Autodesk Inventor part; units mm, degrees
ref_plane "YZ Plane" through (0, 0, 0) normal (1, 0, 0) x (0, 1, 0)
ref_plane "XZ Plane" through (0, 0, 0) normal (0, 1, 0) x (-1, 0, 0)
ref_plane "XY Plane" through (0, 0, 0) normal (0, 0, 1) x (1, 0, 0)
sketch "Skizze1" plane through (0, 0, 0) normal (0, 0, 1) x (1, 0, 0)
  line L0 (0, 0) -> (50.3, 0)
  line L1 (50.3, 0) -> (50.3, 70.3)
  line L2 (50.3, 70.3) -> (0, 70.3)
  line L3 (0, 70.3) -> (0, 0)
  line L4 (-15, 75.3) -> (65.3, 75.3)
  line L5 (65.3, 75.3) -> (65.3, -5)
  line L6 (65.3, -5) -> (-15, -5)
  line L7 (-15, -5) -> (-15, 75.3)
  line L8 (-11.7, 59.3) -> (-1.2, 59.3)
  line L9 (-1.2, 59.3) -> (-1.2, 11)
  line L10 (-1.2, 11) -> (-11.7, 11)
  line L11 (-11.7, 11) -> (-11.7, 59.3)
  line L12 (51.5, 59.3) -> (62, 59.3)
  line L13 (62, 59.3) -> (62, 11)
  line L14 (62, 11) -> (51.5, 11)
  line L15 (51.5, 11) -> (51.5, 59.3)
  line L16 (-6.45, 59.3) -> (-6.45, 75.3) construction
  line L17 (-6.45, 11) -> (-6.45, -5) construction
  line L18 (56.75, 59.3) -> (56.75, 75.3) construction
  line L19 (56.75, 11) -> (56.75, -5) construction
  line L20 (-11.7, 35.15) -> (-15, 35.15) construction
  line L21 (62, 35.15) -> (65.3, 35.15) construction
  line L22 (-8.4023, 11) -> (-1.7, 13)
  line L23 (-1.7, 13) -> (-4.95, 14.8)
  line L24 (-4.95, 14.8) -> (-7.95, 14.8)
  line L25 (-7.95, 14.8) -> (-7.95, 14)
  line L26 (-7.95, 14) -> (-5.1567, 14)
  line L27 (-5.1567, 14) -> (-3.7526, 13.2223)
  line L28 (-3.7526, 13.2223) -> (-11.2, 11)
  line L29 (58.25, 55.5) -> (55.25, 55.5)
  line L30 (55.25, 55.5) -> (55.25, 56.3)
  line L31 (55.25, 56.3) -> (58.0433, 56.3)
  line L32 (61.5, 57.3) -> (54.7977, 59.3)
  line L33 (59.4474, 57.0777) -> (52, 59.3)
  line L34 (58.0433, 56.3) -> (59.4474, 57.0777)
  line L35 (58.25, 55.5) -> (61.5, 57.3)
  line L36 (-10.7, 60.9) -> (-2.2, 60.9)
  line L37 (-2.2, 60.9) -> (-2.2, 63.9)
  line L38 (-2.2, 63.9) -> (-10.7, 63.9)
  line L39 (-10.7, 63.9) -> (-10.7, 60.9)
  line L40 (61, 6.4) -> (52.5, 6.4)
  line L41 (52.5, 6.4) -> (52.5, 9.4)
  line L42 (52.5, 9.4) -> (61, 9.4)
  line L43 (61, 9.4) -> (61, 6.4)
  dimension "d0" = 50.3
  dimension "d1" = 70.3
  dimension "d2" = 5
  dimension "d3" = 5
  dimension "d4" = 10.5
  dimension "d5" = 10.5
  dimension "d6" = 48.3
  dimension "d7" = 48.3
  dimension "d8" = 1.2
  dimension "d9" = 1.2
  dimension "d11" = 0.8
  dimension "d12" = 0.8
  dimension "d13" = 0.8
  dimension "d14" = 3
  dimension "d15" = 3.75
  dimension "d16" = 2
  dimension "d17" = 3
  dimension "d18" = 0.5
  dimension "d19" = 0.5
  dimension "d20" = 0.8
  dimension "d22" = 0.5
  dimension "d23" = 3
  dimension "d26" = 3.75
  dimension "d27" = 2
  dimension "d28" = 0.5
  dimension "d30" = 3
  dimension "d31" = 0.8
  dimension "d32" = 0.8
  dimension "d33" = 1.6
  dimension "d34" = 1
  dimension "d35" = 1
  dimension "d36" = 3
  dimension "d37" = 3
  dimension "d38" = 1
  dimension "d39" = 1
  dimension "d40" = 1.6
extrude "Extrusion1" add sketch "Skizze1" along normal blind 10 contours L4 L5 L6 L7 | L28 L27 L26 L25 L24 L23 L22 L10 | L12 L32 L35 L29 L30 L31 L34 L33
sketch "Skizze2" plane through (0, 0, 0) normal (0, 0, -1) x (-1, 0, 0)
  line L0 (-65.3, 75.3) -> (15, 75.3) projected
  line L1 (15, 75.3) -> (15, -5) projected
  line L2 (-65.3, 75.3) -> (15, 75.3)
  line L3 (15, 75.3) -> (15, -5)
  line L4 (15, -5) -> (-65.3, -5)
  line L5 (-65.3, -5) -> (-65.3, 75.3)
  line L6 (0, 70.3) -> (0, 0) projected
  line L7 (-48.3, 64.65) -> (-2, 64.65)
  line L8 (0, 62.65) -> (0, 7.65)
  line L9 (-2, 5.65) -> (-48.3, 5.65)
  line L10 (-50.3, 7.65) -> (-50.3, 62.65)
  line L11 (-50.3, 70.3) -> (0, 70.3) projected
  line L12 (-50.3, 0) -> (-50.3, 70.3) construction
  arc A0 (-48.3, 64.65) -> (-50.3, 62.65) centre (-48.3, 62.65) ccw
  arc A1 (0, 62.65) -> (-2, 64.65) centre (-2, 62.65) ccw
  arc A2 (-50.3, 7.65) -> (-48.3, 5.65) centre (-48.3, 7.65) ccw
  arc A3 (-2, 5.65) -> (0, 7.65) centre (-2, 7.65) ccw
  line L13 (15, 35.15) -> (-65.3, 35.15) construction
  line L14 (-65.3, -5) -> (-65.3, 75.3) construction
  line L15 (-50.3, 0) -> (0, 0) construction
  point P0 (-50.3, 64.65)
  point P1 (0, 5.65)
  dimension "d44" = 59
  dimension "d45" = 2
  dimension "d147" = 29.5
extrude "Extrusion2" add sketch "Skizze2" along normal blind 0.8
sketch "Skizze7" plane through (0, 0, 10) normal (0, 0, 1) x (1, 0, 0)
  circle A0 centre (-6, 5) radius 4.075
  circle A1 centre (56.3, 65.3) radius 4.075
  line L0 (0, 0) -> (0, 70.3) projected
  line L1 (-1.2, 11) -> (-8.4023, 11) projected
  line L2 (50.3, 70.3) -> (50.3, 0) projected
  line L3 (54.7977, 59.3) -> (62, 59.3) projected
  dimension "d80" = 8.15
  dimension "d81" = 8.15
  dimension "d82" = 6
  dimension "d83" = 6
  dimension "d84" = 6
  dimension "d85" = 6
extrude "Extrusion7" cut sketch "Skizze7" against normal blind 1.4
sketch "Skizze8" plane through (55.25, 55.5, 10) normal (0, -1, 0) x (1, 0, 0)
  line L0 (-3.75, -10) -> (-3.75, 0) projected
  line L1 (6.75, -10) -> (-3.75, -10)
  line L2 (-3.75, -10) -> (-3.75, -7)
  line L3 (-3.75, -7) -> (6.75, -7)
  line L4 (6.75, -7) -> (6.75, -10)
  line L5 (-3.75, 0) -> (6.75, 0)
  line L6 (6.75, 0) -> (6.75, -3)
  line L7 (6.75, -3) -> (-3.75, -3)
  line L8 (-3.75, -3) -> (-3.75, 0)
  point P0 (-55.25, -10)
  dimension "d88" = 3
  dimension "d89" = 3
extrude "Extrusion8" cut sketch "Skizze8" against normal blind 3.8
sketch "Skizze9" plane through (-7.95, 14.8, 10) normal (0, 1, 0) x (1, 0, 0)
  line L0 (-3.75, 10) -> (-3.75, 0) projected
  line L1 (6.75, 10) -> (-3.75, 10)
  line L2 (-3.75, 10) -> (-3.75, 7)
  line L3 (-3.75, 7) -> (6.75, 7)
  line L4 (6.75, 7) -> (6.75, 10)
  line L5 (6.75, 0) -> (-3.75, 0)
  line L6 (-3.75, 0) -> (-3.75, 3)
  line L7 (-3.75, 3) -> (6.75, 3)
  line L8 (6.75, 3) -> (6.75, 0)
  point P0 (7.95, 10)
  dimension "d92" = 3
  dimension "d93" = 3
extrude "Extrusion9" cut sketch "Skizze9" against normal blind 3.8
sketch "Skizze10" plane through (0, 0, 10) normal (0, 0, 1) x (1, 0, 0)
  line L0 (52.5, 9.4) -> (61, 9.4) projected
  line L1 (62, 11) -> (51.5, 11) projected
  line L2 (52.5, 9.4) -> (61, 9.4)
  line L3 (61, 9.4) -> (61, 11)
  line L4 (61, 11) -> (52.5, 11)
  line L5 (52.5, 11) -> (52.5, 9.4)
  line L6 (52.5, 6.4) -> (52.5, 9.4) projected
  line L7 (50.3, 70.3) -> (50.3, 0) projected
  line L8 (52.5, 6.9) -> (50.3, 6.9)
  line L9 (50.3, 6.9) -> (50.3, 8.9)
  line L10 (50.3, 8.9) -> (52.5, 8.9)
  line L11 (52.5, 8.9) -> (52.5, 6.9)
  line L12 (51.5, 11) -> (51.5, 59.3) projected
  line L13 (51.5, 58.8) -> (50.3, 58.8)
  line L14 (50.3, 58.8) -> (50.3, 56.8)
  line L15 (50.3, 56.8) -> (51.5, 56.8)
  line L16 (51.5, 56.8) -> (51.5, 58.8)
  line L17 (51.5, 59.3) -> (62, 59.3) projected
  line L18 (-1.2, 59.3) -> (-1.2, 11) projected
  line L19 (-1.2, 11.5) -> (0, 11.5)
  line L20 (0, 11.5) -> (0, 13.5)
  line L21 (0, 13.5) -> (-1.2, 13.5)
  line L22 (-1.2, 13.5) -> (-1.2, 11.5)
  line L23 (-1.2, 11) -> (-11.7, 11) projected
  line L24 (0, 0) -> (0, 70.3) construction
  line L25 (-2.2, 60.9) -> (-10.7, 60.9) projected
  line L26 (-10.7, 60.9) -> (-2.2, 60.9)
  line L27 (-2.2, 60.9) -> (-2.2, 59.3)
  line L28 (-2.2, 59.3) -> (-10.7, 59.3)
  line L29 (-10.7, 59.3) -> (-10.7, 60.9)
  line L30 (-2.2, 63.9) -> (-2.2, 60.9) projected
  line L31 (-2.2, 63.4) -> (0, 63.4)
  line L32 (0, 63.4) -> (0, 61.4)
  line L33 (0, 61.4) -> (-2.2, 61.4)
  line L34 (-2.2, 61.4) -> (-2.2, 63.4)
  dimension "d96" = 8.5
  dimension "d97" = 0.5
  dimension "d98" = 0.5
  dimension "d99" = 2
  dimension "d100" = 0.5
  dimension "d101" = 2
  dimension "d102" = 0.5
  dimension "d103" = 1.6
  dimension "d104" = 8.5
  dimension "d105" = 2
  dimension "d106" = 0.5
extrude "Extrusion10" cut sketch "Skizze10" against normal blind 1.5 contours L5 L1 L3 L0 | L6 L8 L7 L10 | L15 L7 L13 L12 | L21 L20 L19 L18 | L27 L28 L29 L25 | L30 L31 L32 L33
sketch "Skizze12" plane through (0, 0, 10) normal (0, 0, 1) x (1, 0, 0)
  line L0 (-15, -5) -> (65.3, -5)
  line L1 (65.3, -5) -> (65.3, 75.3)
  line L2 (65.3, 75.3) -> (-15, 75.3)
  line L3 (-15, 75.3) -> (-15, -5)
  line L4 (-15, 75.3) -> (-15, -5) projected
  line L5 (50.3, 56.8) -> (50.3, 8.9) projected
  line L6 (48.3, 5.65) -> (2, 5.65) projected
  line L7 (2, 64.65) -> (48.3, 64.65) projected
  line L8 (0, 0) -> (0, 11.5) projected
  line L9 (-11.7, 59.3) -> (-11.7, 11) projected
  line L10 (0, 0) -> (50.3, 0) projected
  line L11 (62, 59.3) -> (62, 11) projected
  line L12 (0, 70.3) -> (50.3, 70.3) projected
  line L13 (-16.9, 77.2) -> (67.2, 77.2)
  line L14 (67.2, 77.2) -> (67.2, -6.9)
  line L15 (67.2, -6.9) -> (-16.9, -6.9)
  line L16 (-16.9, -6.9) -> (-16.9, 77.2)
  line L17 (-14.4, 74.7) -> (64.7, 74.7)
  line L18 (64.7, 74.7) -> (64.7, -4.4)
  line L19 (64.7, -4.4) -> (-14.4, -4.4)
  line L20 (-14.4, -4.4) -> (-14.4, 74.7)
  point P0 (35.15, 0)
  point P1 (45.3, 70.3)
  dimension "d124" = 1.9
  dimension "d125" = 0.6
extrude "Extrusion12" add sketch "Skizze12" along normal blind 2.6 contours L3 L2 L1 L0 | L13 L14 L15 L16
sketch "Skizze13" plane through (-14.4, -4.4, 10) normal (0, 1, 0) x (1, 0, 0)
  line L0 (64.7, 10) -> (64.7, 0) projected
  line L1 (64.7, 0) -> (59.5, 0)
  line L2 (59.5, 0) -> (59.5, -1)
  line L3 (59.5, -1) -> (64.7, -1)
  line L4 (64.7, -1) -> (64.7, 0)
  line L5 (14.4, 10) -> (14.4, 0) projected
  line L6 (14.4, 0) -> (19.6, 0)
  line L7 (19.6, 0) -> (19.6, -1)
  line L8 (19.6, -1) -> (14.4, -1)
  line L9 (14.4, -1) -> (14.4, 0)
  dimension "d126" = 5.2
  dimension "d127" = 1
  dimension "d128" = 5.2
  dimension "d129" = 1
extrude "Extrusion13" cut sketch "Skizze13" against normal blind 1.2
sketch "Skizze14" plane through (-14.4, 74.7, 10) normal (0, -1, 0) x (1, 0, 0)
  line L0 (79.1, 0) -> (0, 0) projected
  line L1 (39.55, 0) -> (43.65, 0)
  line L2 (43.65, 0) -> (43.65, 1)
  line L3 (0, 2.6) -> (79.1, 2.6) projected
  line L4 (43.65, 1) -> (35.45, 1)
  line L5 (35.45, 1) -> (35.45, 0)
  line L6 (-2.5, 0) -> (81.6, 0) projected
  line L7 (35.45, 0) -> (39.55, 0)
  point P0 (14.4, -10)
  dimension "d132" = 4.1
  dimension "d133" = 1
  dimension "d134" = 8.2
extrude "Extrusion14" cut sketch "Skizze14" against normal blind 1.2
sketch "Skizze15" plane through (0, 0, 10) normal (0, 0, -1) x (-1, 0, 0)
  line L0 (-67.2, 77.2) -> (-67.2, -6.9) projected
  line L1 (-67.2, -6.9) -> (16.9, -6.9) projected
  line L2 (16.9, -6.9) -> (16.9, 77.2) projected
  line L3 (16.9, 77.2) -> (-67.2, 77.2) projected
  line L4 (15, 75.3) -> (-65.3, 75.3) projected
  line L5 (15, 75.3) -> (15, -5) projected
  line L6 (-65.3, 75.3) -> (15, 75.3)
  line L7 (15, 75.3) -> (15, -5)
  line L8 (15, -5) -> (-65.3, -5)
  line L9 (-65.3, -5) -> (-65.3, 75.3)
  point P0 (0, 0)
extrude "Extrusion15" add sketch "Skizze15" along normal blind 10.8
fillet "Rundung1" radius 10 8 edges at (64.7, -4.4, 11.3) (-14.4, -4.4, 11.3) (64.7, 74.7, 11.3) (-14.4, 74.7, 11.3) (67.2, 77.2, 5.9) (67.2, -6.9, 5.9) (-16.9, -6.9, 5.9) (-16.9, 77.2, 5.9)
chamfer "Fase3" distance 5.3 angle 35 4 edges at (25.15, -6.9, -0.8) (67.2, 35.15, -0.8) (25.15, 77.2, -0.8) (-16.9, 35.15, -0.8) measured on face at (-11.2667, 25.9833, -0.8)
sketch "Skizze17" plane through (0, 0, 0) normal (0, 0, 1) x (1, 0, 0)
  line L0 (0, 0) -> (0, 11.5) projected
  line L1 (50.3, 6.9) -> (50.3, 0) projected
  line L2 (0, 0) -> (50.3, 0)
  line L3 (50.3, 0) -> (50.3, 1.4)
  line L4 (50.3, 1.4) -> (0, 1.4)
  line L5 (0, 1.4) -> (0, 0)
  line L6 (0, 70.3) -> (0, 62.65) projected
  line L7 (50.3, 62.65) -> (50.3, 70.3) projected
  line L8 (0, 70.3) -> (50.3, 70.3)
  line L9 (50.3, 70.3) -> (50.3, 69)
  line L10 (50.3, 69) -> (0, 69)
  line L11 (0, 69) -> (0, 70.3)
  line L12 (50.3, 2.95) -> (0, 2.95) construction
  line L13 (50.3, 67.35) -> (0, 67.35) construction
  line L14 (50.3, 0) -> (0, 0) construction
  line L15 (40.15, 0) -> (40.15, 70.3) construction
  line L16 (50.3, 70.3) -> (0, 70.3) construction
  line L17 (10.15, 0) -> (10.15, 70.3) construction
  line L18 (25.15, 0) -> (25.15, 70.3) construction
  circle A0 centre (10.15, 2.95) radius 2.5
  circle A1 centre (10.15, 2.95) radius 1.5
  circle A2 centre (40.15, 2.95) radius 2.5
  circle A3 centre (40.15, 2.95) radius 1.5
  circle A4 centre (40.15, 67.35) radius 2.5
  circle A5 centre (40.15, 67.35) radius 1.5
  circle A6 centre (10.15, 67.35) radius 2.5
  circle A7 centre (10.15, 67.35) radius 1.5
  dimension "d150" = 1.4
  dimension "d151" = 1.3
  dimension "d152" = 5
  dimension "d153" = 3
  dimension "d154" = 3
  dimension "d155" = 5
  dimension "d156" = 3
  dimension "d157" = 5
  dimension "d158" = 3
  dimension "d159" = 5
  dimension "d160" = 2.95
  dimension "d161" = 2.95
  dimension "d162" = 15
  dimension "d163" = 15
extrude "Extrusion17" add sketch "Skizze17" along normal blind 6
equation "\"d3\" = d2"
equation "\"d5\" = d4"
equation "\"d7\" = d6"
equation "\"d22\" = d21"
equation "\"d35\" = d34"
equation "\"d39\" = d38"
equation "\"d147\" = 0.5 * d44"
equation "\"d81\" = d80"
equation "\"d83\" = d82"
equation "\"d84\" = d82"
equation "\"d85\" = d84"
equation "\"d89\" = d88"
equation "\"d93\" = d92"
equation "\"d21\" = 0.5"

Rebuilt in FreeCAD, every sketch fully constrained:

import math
import FreeCAD as App
import Part
import Sketcher

V = App.Vector
Q = App.Units.Quantity


def edges_at(feature, points):
    """Names of the edges that pass closest to the given points."""
    edges = feature.Shape.Edges
    near = lambda p: min(range(len(edges)), key=lambda i: edges[i].distToShape(Part.Vertex(*p))[0])
    return sorted({f"Edge{near(p) + 1}" for p in points})


def add_polygon(sketch, points):
    """Adds a closed chain of lines whose ends are joined by coincident constraints."""
    first, n = sketch.GeometryCount, len(points)
    for a, b in zip(points, points[1:] + points[:1]):
        sketch.addGeometry(Part.LineSegment(App.Vector(*a, 0), App.Vector(*b, 0)), False)
    for i in range(n):
        sketch.addConstraint(Sketcher.Constraint("Coincident", first + i, 2, first + (i + 1) % n, 1))

doc = App.newDocument("Part")
body = doc.addObject("PartDesign::Body", "Body")

sketch1 = body.newObject("Sketcher::SketchObject", "Sketch")
sketch1.AttachmentSupport = (doc.getObject("XY_Plane"), [""])
sketch1.MapMode = "FlatFace"
add_polygon(sketch1, [(65.3, 75.3), (-15, 75.3), (-15, -5), (65.3, -5)])
add_polygon(sketch1, [(61, 9.4), (61, 6.4), (52.5, 6.4), (52.5, 9.4)])
add_polygon(sketch1, [(-11.7, 11), (-11.7, 59.3), (-1.2, 59.3), (-1.2, 11), (-8.4, 11), (-1.7, 13), (-5, 14.8), (-8, 14.8), (-8, 14), (-5.2, 14), (-3.8, 13.2), (-11.2, 11)])
add_polygon(sketch1, [(-2.2, 60.9), (-10.7, 60.9), (-10.7, 63.9), (-2.2, 63.9)])
add_polygon(sketch1, [(50.3, 0), (0, 0), (0, 70.3), (50.3, 70.3)])
add_polygon(sketch1, [(51.5, 11), (51.5, 59.3), (52, 59.3), (59.4, 57.1), (58, 56.3), (55.2, 56.3), (55.2, 55.5), (58.2, 55.5), (61.5, 57.3), (54.8, 59.3), (62, 59.3), (62, 11)])
sketch1.addConstraint([
    Sketcher.Constraint("Horizontal", 0),
    Sketcher.Constraint("Vertical", 1),
    Sketcher.Constraint("Horizontal", 2),
    Sketcher.Constraint("Vertical", 3),
    Sketcher.Constraint("Vertical", 4),
    Sketcher.Constraint("Horizontal", 5),
    Sketcher.Constraint("Vertical", 6),
    Sketcher.Constraint("Horizontal", 7),
    Sketcher.Constraint("Vertical", 8),
    Sketcher.Constraint("Horizontal", 9),
    Sketcher.Constraint("Vertical", 10),
    Sketcher.Constraint("Horizontal", 11),
    Sketcher.Constraint("Horizontal", 14),
    Sketcher.Constraint("Vertical", 15),
    Sketcher.Constraint("Horizontal", 16),
    Sketcher.Constraint("Horizontal", 19),
    Sketcher.Constraint("Horizontal", 20),
    Sketcher.Constraint("Vertical", 21),
    Sketcher.Constraint("Horizontal", 22),
    Sketcher.Constraint("Vertical", 23),
    Sketcher.Constraint("Horizontal", 24),
    Sketcher.Constraint("Vertical", 25),
    Sketcher.Constraint("Horizontal", 26),
    Sketcher.Constraint("Vertical", 27),
    Sketcher.Constraint("Vertical", 28),
    Sketcher.Constraint("Horizontal", 29),
    Sketcher.Constraint("Horizontal", 32),
    Sketcher.Constraint("Vertical", 33),
    Sketcher.Constraint("Horizontal", 34),
    Sketcher.Constraint("Horizontal", 37),
    Sketcher.Constraint("Vertical", 38),
    Sketcher.Constraint("Horizontal", 39),
    Sketcher.Constraint("Coincident", 24, 2, -1, 1),
    Sketcher.Constraint("Parallel", 13, 17),
    Sketcher.Constraint("Parallel", 12, 18),
    Sketcher.Constraint("Parallel", 31, 35),
    Sketcher.Constraint("Parallel", 30, 36),
    Sketcher.Constraint("Horizontal", 11, 2, 18, 2),
    Sketcher.Constraint("Horizontal", 9, 2, 28, 2),
    Sketcher.Constraint("Horizontal", 29, 2, 36, 2),
    Sketcher.Constraint("Horizontal", 19, 2, 38, 2),
    Sketcher.Constraint("Equal", 7, 20),
    Sketcher.Constraint("Equal", 19, 29),
    Sketcher.Constraint("Equal", 16, 32),
    Sketcher.Constraint("Equal", 14, 34),
    Sketcher.Constraint("Equal", 11, 37),
    Sketcher.Constraint("Equal", 9, 39),
    Sketcher.Constraint("Equal", 2, 1),
    Sketcher.Constraint("Equal", 34, 4),
    Sketcher.Constraint("Equal", 6, 21),
    Sketcher.Constraint("Equal", 15, 33),
    Sketcher.Constraint("Equal", 18, 30),
    Sketcher.Constraint("Equal", 17, 31),
    Sketcher.Constraint("Equal", 13, 35),
    Sketcher.Constraint("Equal", 12, 36),
    Sketcher.Constraint("DistanceX", 14, 2, 14, 1, Q("3 mm")),
    Sketcher.Constraint("DistanceX", 9, 1, 9, 2, Q("10.5 mm")),
    Sketcher.Constraint("DistanceX", 19, 2, 19, 1, Q("0.5 mm")),
    Sketcher.Constraint("DistanceX", 24, 2, 24, 1, Q("50.3 mm")),
    Sketcher.Constraint("DistanceY", 8, 1, 8, 2, Q("48.3 mm")),
    Sketcher.Constraint("DistanceY", 15, 2, 15, 1, Q("0.8 mm")),
    Sketcher.Constraint("DistanceY", 25, 1, 25, 2, Q("70.3 mm")),
    Sketcher.Constraint("DistanceY", 1, 2, -1, 1, Q("5 mm")),
    Sketcher.Constraint("DistanceY", 10, 2, 12, 2, Q("2 mm")),
    Sketcher.Constraint("DistanceY", 11, 2, 15, 2, Q("3 mm")),
    Sketcher.Constraint("DistanceX", 8, 2, 20, 2, Q("1 mm")),
    Sketcher.Constraint("DistanceX", 22, 2, 9, 2, Q("1 mm")),
    Sketcher.Constraint("DistanceY", 26, 2, 3, 2, Q("5 mm")),
    Sketcher.Constraint("DistanceX", 28, 2, 6, 2, Q("1 mm")),
    Sketcher.Constraint("DistanceX", 9, 2, -1, 1, Q("1.2 mm")),
    Sketcher.Constraint("DistanceY", 6, 2, 10, 2, Q("1.6 mm")),
    Sketcher.Constraint("DistanceX", 12, 2, 10, 2, Q("0.5 mm")),
    Sketcher.Constraint("DistanceY", 8, 2, 20, 2, Q("1.6 mm")),
    Sketcher.Constraint("DistanceX", 26, 2, 28, 2, Q("1.2 mm")),
    Sketcher.Constraint("DistanceX", 13, 2, 10, 2, Q("3.75 mm")),
    Sketcher.Constraint("DistanceX", 0, 2, -1, 1, Q("15 mm")),
    Sketcher.Constraint("DistanceY", -1, 1, 10, 2, Q("11 mm")),
    Sketcher.Constraint("Distance", 17, Q("1.605 mm")),
    Sketcher.Constraint("Distance", 18, Q("7.772 mm")),
])
pad1 = body.newObject("PartDesign::Pad", "Pad")
pad1.Profile = sketch1
pad1.Length = 10

sketch2 = body.newObject("Sketcher::SketchObject", "Sketch001")
sketch2.AttachmentSupport = (doc.getObject("XY_Plane"), [""])
sketch2.MapMode = "FlatFace"
add_polygon(sketch2, [(-15, 75.3), (65.3, 75.3), (65.3, -5), (-15, -5)])
sketch2.addGeometry(Part.ArcOfCircle(Part.Circle(V(2, 62.6, 0), V(0, 0, 1), 2), math.radians(90), math.radians(180)), False)
sketch2.addGeometry(Part.LineSegment(V(0, 62.6, 0), V(0, 7.7, 0)), False)
sketch2.addGeometry(Part.ArcOfCircle(Part.Circle(V(2, 7.7, 0), V(0, 0, 1), 2), math.radians(180), math.radians(270)), False)
sketch2.addGeometry(Part.LineSegment(V(2, 5.7, 0), V(48.3, 5.7, 0)), False)
sketch2.addGeometry(Part.ArcOfCircle(Part.Circle(V(48.3, 7.7, 0), V(0, 0, 1), 2), math.radians(-90), math.radians(0)), False)
sketch2.addGeometry(Part.LineSegment(V(50.3, 7.7, 0), V(50.3, 62.6, 0)), False)
sketch2.addGeometry(Part.ArcOfCircle(Part.Circle(V(48.3, 62.6, 0), V(0, 0, 1), 2), math.radians(0), math.radians(90)), False)
sketch2.addGeometry(Part.LineSegment(V(48.3, 64.7, 0), V(2, 64.7, 0)), False)
sketch2.addConstraint([
    Sketcher.Constraint("Tangent", 4, 2, 5, 1),
    Sketcher.Constraint("Tangent", 5, 2, 6, 1),
    Sketcher.Constraint("Tangent", 6, 2, 7, 1),
    Sketcher.Constraint("Tangent", 7, 2, 8, 1),
    Sketcher.Constraint("Tangent", 8, 2, 9, 1),
    Sketcher.Constraint("Tangent", 9, 2, 10, 1),
    Sketcher.Constraint("Tangent", 10, 2, 11, 1),
    Sketcher.Constraint("Tangent", 11, 2, 4, 1),
    Sketcher.Constraint("Horizontal", 0),
    Sketcher.Constraint("Vertical", 1),
    Sketcher.Constraint("Horizontal", 2),
    Sketcher.Constraint("Vertical", 3),
    Sketcher.Constraint("Vertical", 5),
    Sketcher.Constraint("Horizontal", 7),
    Sketcher.Constraint("Vertical", 9),
    Sketcher.Constraint("Horizontal", 11),
    Sketcher.Constraint("Equal", 4, 6),
    Sketcher.Constraint("Equal", 6, 8),
    Sketcher.Constraint("Equal", 8, 10),
    Sketcher.Constraint("PointOnObject", 4, 2, -2),
    Sketcher.Constraint("Equal", 2, 1),
    Sketcher.Constraint("Radius", 4, Q("2 mm")),
    Sketcher.Constraint("DistanceY", 5, 2, 5, 1, Q("55 mm")),
    Sketcher.Constraint("DistanceX", 0, 1, 0, 2, Q("80.3 mm")),
    Sketcher.Constraint("DistanceX", 7, 1, 7, 2, Q("46.3 mm")),
    Sketcher.Constraint("DistanceY", 1, 2, -1, 1, Q("5 mm")),
    Sketcher.Constraint("DistanceX", 2, 2, -1, 1, Q("15 mm")),
    Sketcher.Constraint("DistanceY", -1, 1, 4, 3, Q("62.65 mm")),
])
pad2 = body.newObject("PartDesign::Pad", "Pad001")
pad2.Profile = sketch2
pad2.Length = 0.8
pad2.Reversed = True

sketch3 = body.newObject("Sketcher::SketchObject", "Sketch002")
sketch3.AttachmentSupport = (doc.getObject("XY_Plane"), [""])
sketch3.MapMode = "FlatFace"
sketch3.AttachmentOffset = App.Placement(V(0, 0, 10), App.Rotation())
sketch3.addGeometry([
    Part.Circle(V(-6, 5, 0), V(0, 0, 1), 4.1),
    Part.Circle(V(56.3, 65.3, 0), V(0, 0, 1), 4.1),
], False)
sketch3.addConstraint([
    Sketcher.Constraint("Equal", 0, 1),
    Sketcher.Constraint("Diameter", 0, Q("8.15 mm")),
    Sketcher.Constraint("DistanceX", 0, 3, -1, 1, Q("6 mm")),
    Sketcher.Constraint("DistanceY", -1, 1, 0, 3, Q("5 mm")),
    Sketcher.Constraint("DistanceX", -1, 1, 1, 3, Q("56.3 mm")),
    Sketcher.Constraint("DistanceY", -1, 1, 1, 3, Q("65.3 mm")),
])
pocket1 = body.newObject("PartDesign::Pocket", "Pocket")
pocket1.Profile = sketch3
pocket1.Length = 1.4

sketch4 = body.newObject("Sketcher::SketchObject", "Sketch003")
sketch4.AttachmentSupport = (doc.getObject("XZ_Plane"), [""])
sketch4.MapMode = "FlatFace"
sketch4.AttachmentOffset = App.Placement(V(0, 0, -55.5), App.Rotation())
add_polygon(sketch4, [(51.5, 10), (51.5, 7), (62, 7), (62, 10)])
add_polygon(sketch4, [(51.5, 3), (51.5, 0), (62, 0), (62, 3)])
sketch4.addConstraint([
    Sketcher.Constraint("Vertical", 0),
    Sketcher.Constraint("Horizontal", 1),
    Sketcher.Constraint("Vertical", 2),
    Sketcher.Constraint("Horizontal", 3),
    Sketcher.Constraint("Vertical", 4),
    Sketcher.Constraint("Horizontal", 5),
    Sketcher.Constraint("Vertical", 6),
    Sketcher.Constraint("Horizontal", 7),
    Sketcher.Constraint("PointOnObject", 4, 2, -1),
    Sketcher.Constraint("Vertical", 3, 2, 4, 2),
    Sketcher.Constraint("Vertical", 2, 2, 5, 2),
    Sketcher.Constraint("Equal", 2, 4),
    Sketcher.Constraint("DistanceY", 0, 2, 0, 1, Q("3 mm")),
    Sketcher.Constraint("DistanceX", 1, 1, 1, 2, Q("10.5 mm")),
    Sketcher.Constraint("DistanceY", -1, 1, 0, 2, Q("7 mm")),
    Sketcher.Constraint("DistanceX", -1, 1, 1, 2, Q("62 mm")),
])
pocket2 = body.newObject("PartDesign::Pocket", "Pocket001")
pocket2.Profile = sketch4
pocket2.Length = 3.8

sketch5 = body.newObject("Sketcher::SketchObject", "Sketch004")
sketch5.AttachmentSupport = (doc.getObject("XZ_Plane"), [""])
sketch5.MapMode = "FlatFace"
sketch5.AttachmentOffset = App.Placement(V(0, 0, -14.8), App.Rotation())
add_polygon(sketch5, [(-1.2, 0), (-11.7, 0), (-11.7, 3), (-1.2, 3)])
add_polygon(sketch5, [(-1.2, 7), (-11.7, 7), (-11.7, 10), (-1.2, 10)])
sketch5.addConstraint([
    Sketcher.Constraint("Horizontal", 0),
    Sketcher.Constraint("Vertical", 1),
    Sketcher.Constraint("Horizontal", 2),
    Sketcher.Constraint("Vertical", 3),
    Sketcher.Constraint("Horizontal", 4),
    Sketcher.Constraint("Vertical", 5),
    Sketcher.Constraint("Horizontal", 6),
    Sketcher.Constraint("Vertical", 7),
    Sketcher.Constraint("PointOnObject", 0, 2, -1),
    Sketcher.Constraint("Vertical", 1, 2, 4, 2),
    Sketcher.Constraint("Vertical", 3, 2, 6, 2),
    Sketcher.Constraint("Equal", 3, 5),
    Sketcher.Constraint("DistanceY", 1, 1, 1, 2, Q("3 mm")),
    Sketcher.Constraint("DistanceX", 0, 2, 0, 1, Q("10.5 mm")),
    Sketcher.Constraint("DistanceY", -1, 1, 4, 2, Q("7 mm")),
    Sketcher.Constraint("DistanceX", 0, 2, -1, 1, Q("11.7 mm")),
])
pocket3 = body.newObject("PartDesign::Pocket", "Pocket002")
pocket3.Profile = sketch5
pocket3.Length = 3.8
pocket3.Reversed = True

sketch6 = body.newObject("Sketcher::SketchObject", "Sketch005")
sketch6.AttachmentSupport = (doc.getObject("XY_Plane"), [""])
sketch6.MapMode = "FlatFace"
sketch6.AttachmentOffset = App.Placement(V(0, 0, 10), App.Rotation())
add_polygon(sketch6, [(52.5, 11), (52.5, 9.4), (61, 9.4), (61, 11)])
add_polygon(sketch6, [(52.5, 6.9), (52.5, 8.9), (50.3, 8.9), (50.3, 6.9)])
add_polygon(sketch6, [(50.3, 56.8), (51.5, 56.8), (51.5, 58.8), (50.3, 58.8)])
add_polygon(sketch6, [(0, 13.5), (-1.2, 13.5), (-1.2, 11.5), (0, 11.5)])
add_polygon(sketch6, [(-2.2, 59.3), (-2.2, 60.9), (-10.7, 60.9), (-10.7, 59.3)])
add_polygon(sketch6, [(-2.2, 63.4), (-2.2, 61.4), (0, 61.4), (0, 63.4)])
sketch6.addConstraint([
    Sketcher.Constraint("Vertical", 0),
    Sketcher.Constraint("Horizontal", 1),
    Sketcher.Constraint("Vertical", 2),
    Sketcher.Constraint("Horizontal", 3),
    Sketcher.Constraint("Vertical", 4),
    Sketcher.Constraint("Horizontal", 5),
    Sketcher.Constraint("Vertical", 6),
    Sketcher.Constraint("Horizontal", 7),
    Sketcher.Constraint("Horizontal", 8),
    Sketcher.Constraint("Vertical", 9),
    Sketcher.Constraint("Horizontal", 10),
    Sketcher.Constraint("Vertical", 11),
    Sketcher.Constraint("Horizontal", 12),
    Sketcher.Constraint("Vertical", 13),
    Sketcher.Constraint("Horizontal", 14),
    Sketcher.Constraint("Vertical", 15),
    Sketcher.Constraint("Vertical", 16),
    Sketcher.Constraint("Horizontal", 17),
    Sketcher.Constraint("Vertical", 18),
    Sketcher.Constraint("Horizontal", 19),
    Sketcher.Constraint("Vertical", 20),
    Sketcher.Constraint("Horizontal", 21),
    Sketcher.Constraint("Vertical", 22),
    Sketcher.Constraint("Horizontal", 23),
    Sketcher.Constraint("PointOnObject", 14, 2, -2),
    Sketcher.Constraint("PointOnObject", 21, 2, -2),
    Sketcher.Constraint("Vertical", 3, 2, 4, 2),
    Sketcher.Constraint("Vertical", 6, 2, 10, 2),
    Sketcher.Constraint("Vertical", 19, 2, 20, 2),
    Sketcher.Constraint("Equal", 10, 12),
    Sketcher.Constraint("Equal", 3, 17),
    Sketcher.Constraint("Equal", 7, 21),
    Sketcher.Constraint("Equal", 6, 9),
    Sketcher.Constraint("Equal", 11, 13),
    Sketcher.Constraint("Equal", 2, 16),
    Sketcher.Constraint("Equal", 15, 20),
    Sketcher.Constraint("DistanceY", 4, 1, 4, 2, Q("2 mm")),
    Sketcher.Constraint("DistanceX", 1, 1, 1, 2, Q("8.5 mm")),
    Sketcher.Constraint("DistanceY", 0, 2, 0, 1, Q("1.6 mm")),
    Sketcher.Constraint("DistanceY", 4, 2, 0, 2, Q("0.5 mm")),
    Sketcher.Constraint("DistanceY", 3, 2, 13, 2, Q("0.5 mm")),
    Sketcher.Constraint("DistanceY", 16, 2, 20, 2, Q("0.5 mm")),
    Sketcher.Constraint("DistanceX", 5, 2, 5, 1, Q("2.2 mm")),
    Sketcher.Constraint("DistanceX", 8, 1, 8, 2, Q("1.2 mm")),
    Sketcher.Constraint("DistanceX", -1, 1, 1, 2, Q("61 mm")),
    Sketcher.Constraint("DistanceY", -1, 1, 2, 2, Q("11 mm")),
    Sketcher.Constraint("DistanceY", -1, 1, 8, 2, Q("56.8 mm")),
    Sketcher.Constraint("DistanceY", -1, 1, 16, 2, Q("60.9 mm")),
])
pocket4 = body.newObject("PartDesign::Pocket", "Pocket003")
pocket4.Profile = sketch6
pocket4.Length = 1.5

sketch7 = body.newObject("Sketcher::SketchObject", "Sketch006")
sketch7.AttachmentSupport = (doc.getObject("XY_Plane"), [""])
sketch7.MapMode = "FlatFace"
sketch7.AttachmentOffset = App.Placement(V(0, 0, 10), App.Rotation())
add_polygon(sketch7, [(67, 77), (-17, 77), (-17, -7), (67, -7)])
add_polygon(sketch7, [(-14, -4), (-14, 75), (65, 75), (65, -4)])
sketch7.addConstraint([
    Sketcher.Constraint("Horizontal", 0),
    Sketcher.Constraint("Vertical", 1),
    Sketcher.Constraint("Horizontal", 2),
    Sketcher.Constraint("Vertical", 3),
    Sketcher.Constraint("Vertical", 4),
    Sketcher.Constraint("Horizontal", 5),
    Sketcher.Constraint("Vertical", 6),
    Sketcher.Constraint("Horizontal", 7),
    Sketcher.Constraint("Equal", 2, 1),
    Sketcher.Constraint("Equal", 7, 4),
    Sketcher.Constraint("DistanceX", 0, 2, 0, 1, Q("84.1 mm")),
    Sketcher.Constraint("DistanceX", 5, 1, 5, 2, Q("79.1 mm")),
    Sketcher.Constraint("DistanceX", 0, 2, -1, 1, Q("16.9 mm")),
    Sketcher.Constraint("DistanceY", -1, 1, 0, 2, Q("77.2 mm")),
    Sketcher.Constraint("DistanceX", 4, 2, -1, 1, Q("14.4 mm")),
    Sketcher.Constraint("DistanceY", -1, 1, 4, 2, Q("74.7 mm")),
])
pad3 = body.newObject("PartDesign::Pad", "Pad002")
pad3.Profile = sketch7
pad3.Length = 2.6

sketch8 = body.newObject("Sketcher::SketchObject", "Sketch007")
sketch8.AttachmentSupport = (doc.getObject("XZ_Plane"), [""])
sketch8.MapMode = "FlatFace"
sketch8.AttachmentOffset = App.Placement(V(0, 0, 4.4), App.Rotation())
add_polygon(sketch8, [(50.3, 11), (50.3, 10), (45.1, 10), (45.1, 11)])
add_polygon(sketch8, [(5.2, 10), (0, 10), (0, 11), (5.2, 11)])
sketch8.addConstraint([
    Sketcher.Constraint("Vertical", 0),
    Sketcher.Constraint("Horizontal", 1),
    Sketcher.Constraint("Vertical", 2),
    Sketcher.Constraint("Horizontal", 3),
    Sketcher.Constraint("Horizontal", 4),
    Sketcher.Constraint("Vertical", 5),
    Sketcher.Constraint("Horizontal", 6),
    Sketcher.Constraint("Vertical", 7),
    Sketcher.Constraint("PointOnObject", 4, 2, -2),
    Sketcher.Constraint("Horizontal", 1, 2, 4, 2),
    Sketcher.Constraint("Horizontal", 3, 2, 5, 2),
    Sketcher.Constraint("Equal", 3, 4),
    Sketcher.Constraint("DistanceY", 0, 2, 0, 1, Q("1 mm")),
    Sketcher.Constraint("DistanceX", 1, 2, 1, 1, Q("5.2 mm")),
    Sketcher.Constraint("DistanceY", -1, 1, 0, 2, Q("10 mm")),
    Sketcher.Constraint("DistanceX", -1, 1, 0, 2, Q("50.3 mm")),
])
pocket5 = body.newObject("PartDesign::Pocket", "Pocket004")
pocket5.Profile = sketch8
pocket5.Length = 1.2
pocket5.Reversed = True

sketch9 = body.newObject("Sketcher::SketchObject", "Sketch008")
sketch9.AttachmentSupport = (doc.getObject("XZ_Plane"), [""])
sketch9.MapMode = "FlatFace"
sketch9.AttachmentOffset = App.Placement(V(0, 0, -74.7), App.Rotation())
add_polygon(sketch9, [(21.1, 10), (29.2, 10), (29.2, 11), (21.1, 11)])
sketch9.addConstraint([
    Sketcher.Constraint("Horizontal", 0),
    Sketcher.Constraint("Vertical", 1),
    Sketcher.Constraint("Horizontal", 2),
    Sketcher.Constraint("Vertical", 3),
    Sketcher.Constraint("DistanceY", 1, 1, 1, 2, Q("1 mm")),
    Sketcher.Constraint("DistanceX", 0, 1, 0, 2, Q("8.2 mm")),
    Sketcher.Constraint("DistanceY", -1, 1, 0, 2, Q("10 mm")),
    Sketcher.Constraint("DistanceX", -1, 1, 0, 2, Q("29.25 mm")),
])
pocket6 = body.newObject("PartDesign::Pocket", "Pocket005")
pocket6.Profile = sketch9
pocket6.Length = 1.2

sketch10 = body.newObject("Sketcher::SketchObject", "Sketch009")
sketch10.AttachmentSupport = (doc.getObject("XY_Plane"), [""])
sketch10.MapMode = "FlatFace"
sketch10.AttachmentOffset = App.Placement(V(0, 0, 10), App.Rotation())
add_polygon(sketch10, [(-17, 77), (67, 77), (67, -7), (-17, -7)])
add_polygon(sketch10, [(65, 75), (-15, 75), (-15, -5), (65, -5)])
sketch10.addConstraint([
    Sketcher.Constraint("Horizontal", 0),
    Sketcher.Constraint("Vertical", 1),
    Sketcher.Constraint("Horizontal", 2),
    Sketcher.Constraint("Vertical", 3),
    Sketcher.Constraint("Horizontal", 4),
    Sketcher.Constraint("Vertical", 5),
    Sketcher.Constraint("Horizontal", 6),
    Sketcher.Constraint("Vertical", 7),
    Sketcher.Constraint("Equal", 2, 1),
    Sketcher.Constraint("Equal", 6, 5),
    Sketcher.Constraint("DistanceX", 0, 1, 0, 2, Q("84.1 mm")),
    Sketcher.Constraint("DistanceX", 4, 2, 4, 1, Q("80.3 mm")),
    Sketcher.Constraint("DistanceX", 4, 2, -1, 1, Q("15 mm")),
    Sketcher.Constraint("DistanceY", 5, 2, -1, 1, Q("5 mm")),
    Sketcher.Constraint("DistanceX", -1, 1, 0, 2, Q("67.2 mm")),
    Sketcher.Constraint("DistanceY", -1, 1, 0, 2, Q("77.2 mm")),
])
pad4 = body.newObject("PartDesign::Pad", "Pad003")
pad4.Profile = sketch10
pad4.Length = 10.8
pad4.Reversed = True
doc.recompute()

fillet = body.newObject("PartDesign::Fillet", "Fillet")
fillet.Base = (pad4, edges_at(pad4, [
    (64.7, -4.4, 11.3),
    (-14.4, -4.4, 11.3),
    (64.7, 74.7, 11.3),
    (-14.4, 74.7, 11.3),
    (67.2, 77.2, 5.9),
    (67.2, -6.9, 5.9),
    (-16.9, -6.9, 5.9),
    (-16.9, 77.2, 5.9),
]))
fillet.Radius = 10
doc.recompute()

chamfer = body.newObject("PartDesign::Chamfer", "Chamfer")
chamfer.Base = (fillet, edges_at(fillet, [
    (25.15, -6.9, -0.8),
    (67.2, 35.15, -0.8),
    (25.15, 77.2, -0.8),
    (-16.9, 35.15, -0.8),
]))
chamfer.ChamferType = "Distance and Angle"
chamfer.Size = 5.3
chamfer.Angle = 35
chamfer.FlipDirection = True

sketch11 = body.newObject("Sketcher::SketchObject", "Sketch010")
sketch11.AttachmentSupport = (doc.getObject("XY_Plane"), [""])
sketch11.MapMode = "FlatFace"
sketch11.addGeometry([
    Part.LineSegment(V(0, 1.4, 0), V(0, 0, 0)),
    Part.LineSegment(V(0, 0, 0), V(50.3, 0, 0)),
    Part.LineSegment(V(50.3, 0, 0), V(50.3, 1.4, 0)),
    Part.LineSegment(V(50.3, 1.4, 0), V(42.1, 1.4, 0)),
    Part.ArcOfCircle(Part.Circle(V(40.1, 3, 0), V(0, 0, 1), 2.5), math.radians(-38), math.radians(218)),
    Part.LineSegment(V(38.2, 1.4, 0), V(12.1, 1.4, 0)),
    Part.ArcOfCircle(Part.Circle(V(10.2, 3, 0), V(0, 0, 1), 2.5), math.radians(-38), math.radians(218)),
    Part.LineSegment(V(8.2, 1.4, 0), V(0, 1.4, 0)),
    Part.Circle(V(10.2, 3, 0), V(0, 0, 1), 1.5),
    Part.Circle(V(40.1, 3, 0), V(0, 0, 1), 1.5),
    Part.LineSegment(V(50.3, 70.3, 0), V(0, 70.3, 0)),
    Part.LineSegment(V(0, 70.3, 0), V(0, 69, 0)),
    Part.LineSegment(V(0, 69, 0), V(8.3, 69, 0)),
    Part.ArcOfCircle(Part.Circle(V(10.2, 67.3, 0), V(0, 0, 1), 2.5), math.radians(139), math.radians(401)),
    Part.LineSegment(V(12, 69, 0), V(38.3, 69, 0)),
    Part.ArcOfCircle(Part.Circle(V(40.1, 67.3, 0), V(0, 0, 1), 2.5), math.radians(139), math.radians(401)),
    Part.LineSegment(V(42, 69, 0), V(50.3, 69, 0)),
    Part.LineSegment(V(50.3, 69, 0), V(50.3, 70.3, 0)),
    Part.Circle(V(40.1, 67.3, 0), V(0, 0, 1), 1.5),
    Part.Circle(V(10.2, 67.3, 0), V(0, 0, 1), 1.5),
], False)
sketch11.addConstraint([
    Sketcher.Constraint("Coincident", 0, 2, 1, 1),
    Sketcher.Constraint("Coincident", 1, 2, 2, 1),
    Sketcher.Constraint("Coincident", 2, 2, 3, 1),
    Sketcher.Constraint("Coincident", 3, 2, 4, 1),
    Sketcher.Constraint("Coincident", 4, 2, 5, 1),
    Sketcher.Constraint("Coincident", 5, 2, 6, 1),
    Sketcher.Constraint("Coincident", 6, 2, 7, 1),
    Sketcher.Constraint("Coincident", 7, 2, 0, 1),
    Sketcher.Constraint("Coincident", 10, 2, 11, 1),
    Sketcher.Constraint("Coincident", 11, 2, 12, 1),
    Sketcher.Constraint("Coincident", 12, 2, 13, 1),
    Sketcher.Constraint("Coincident", 13, 2, 14, 1),
    Sketcher.Constraint("Coincident", 14, 2, 15, 1),
    Sketcher.Constraint("Coincident", 15, 2, 16, 1),
    Sketcher.Constraint("Coincident", 16, 2, 17, 1),
    Sketcher.Constraint("Coincident", 17, 2, 10, 1),
    Sketcher.Constraint("Vertical", 0),
    Sketcher.Constraint("Horizontal", 1),
    Sketcher.Constraint("Vertical", 2),
    Sketcher.Constraint("Horizontal", 3),
    Sketcher.Constraint("Horizontal", 5),
    Sketcher.Constraint("Horizontal", 7),
    Sketcher.Constraint("Horizontal", 10),
    Sketcher.Constraint("Vertical", 11),
    Sketcher.Constraint("Horizontal", 12),
    Sketcher.Constraint("Horizontal", 14),
    Sketcher.Constraint("Horizontal", 16),
    Sketcher.Constraint("Vertical", 17),
    Sketcher.Constraint("Coincident", 0, 2, -1, 1),
    Sketcher.Constraint("Coincident", 8, 3, 6, 3),
    Sketcher.Constraint("Coincident", 9, 3, 4, 3),
    Sketcher.Constraint("Coincident", 18, 3, 15, 3),
    Sketcher.Constraint("Coincident", 19, 3, 13, 3),
    Sketcher.Constraint("Equal", 4, 6),
    Sketcher.Constraint("Equal", 8, 9),
    Sketcher.Constraint("Equal", 6, 13),
    Sketcher.Constraint("Equal", 13, 15),
    Sketcher.Constraint("Equal", 9, 18),
    Sketcher.Constraint("Equal", 18, 19),
    Sketcher.Constraint("PointOnObject", 10, 2, -2),
    Sketcher.Constraint("Horizontal", 4, 3, 6, 3),
    Sketcher.Constraint("Horizontal", 13, 3, 15, 3),
    Sketcher.Constraint("Horizontal", 3, 2, 4, 2),
    Sketcher.Constraint("Horizontal", 5, 2, 6, 2),
    Sketcher.Constraint("Horizontal", 12, 2, 13, 2),
    Sketcher.Constraint("Horizontal", 14, 2, 15, 2),
    Sketcher.Constraint("Vertical", 8, 3, 13, 3),
    Sketcher.Constraint("Vertical", 9, 3, 15, 3),
    Sketcher.Constraint("Vertical", 2, 2, 16, 2),
    Sketcher.Constraint("Equal", 3, 7),
    Sketcher.Constraint("Diameter", 8, Q("3 mm")),
    Sketcher.Constraint("Radius", 4, Q("2.5 mm")),
    Sketcher.Constraint("DistanceY", 0, 2, 0, 1, Q("1.4 mm")),
    Sketcher.Constraint("DistanceY", 11, 2, 11, 1, Q("1.3 mm")),
    Sketcher.Constraint("DistanceY", -1, 1, 4, 3, Q("2.95 mm")),
    Sketcher.Constraint("DistanceY", 13, 3, 10, 2, Q("2.95 mm")),
    Sketcher.Constraint("DistanceX", 1, 1, 1, 2, Q("50.3 mm")),
    Sketcher.Constraint("DistanceY", -1, 1, 11, 2, Q("69 mm")),
    Sketcher.Constraint("DistanceX", 6, 3, 4, 3, Q("30 mm")),
])
pad5 = body.newObject("PartDesign::Pad", "Pad004")
pad5.Profile = sketch11
pad5.Length = 6

doc.recompute()
